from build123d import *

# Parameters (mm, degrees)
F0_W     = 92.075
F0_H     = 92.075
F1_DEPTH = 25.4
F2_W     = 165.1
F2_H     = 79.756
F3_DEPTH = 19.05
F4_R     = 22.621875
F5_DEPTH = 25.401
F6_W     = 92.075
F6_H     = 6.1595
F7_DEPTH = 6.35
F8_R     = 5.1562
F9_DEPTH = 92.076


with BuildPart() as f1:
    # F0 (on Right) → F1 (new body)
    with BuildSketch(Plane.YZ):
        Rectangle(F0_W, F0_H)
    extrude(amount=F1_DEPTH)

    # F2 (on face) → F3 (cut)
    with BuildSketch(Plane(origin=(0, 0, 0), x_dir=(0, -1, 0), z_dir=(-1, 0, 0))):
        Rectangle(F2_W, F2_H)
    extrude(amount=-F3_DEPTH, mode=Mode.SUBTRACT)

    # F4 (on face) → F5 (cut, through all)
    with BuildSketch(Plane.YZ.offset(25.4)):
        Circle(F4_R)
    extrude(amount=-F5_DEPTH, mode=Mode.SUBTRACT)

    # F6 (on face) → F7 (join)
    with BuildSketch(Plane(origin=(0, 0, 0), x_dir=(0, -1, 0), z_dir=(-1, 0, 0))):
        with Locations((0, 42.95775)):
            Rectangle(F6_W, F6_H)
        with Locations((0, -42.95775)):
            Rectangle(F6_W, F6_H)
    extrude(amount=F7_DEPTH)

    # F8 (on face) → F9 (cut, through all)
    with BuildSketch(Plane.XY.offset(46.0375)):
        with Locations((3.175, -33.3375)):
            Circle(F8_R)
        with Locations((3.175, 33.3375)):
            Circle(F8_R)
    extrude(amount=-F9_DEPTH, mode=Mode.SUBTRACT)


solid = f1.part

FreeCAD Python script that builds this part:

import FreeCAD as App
import Part
import Sketcher
Q = App.Units.Quantity


def add_polygon(sketch, points):
    """Adds a closed chain of lines whose ends are joined by coincident constraints."""
    first, n = sketch.GeometryCount, len(points)
    for a, b in zip(points, points[1:] + points[:1]):
        sketch.addGeometry(Part.LineSegment(App.Vector(*a, 0), App.Vector(*b, 0)), False)
    for i in range(n):
        sketch.addConstraint(Sketcher.Constraint("Coincident", first + i, 2, first + (i + 1) % n, 1))

doc = App.newDocument("Part")
body = doc.addObject("PartDesign::Body", "Body")

# Sketch on YZ plane
sketch1 = body.newObject("Sketcher::SketchObject", "Sketch")
sketch1.AttachmentSupport = (doc.getObject("YZ_Plane"), [""])
sketch1.MapMode = "FlatFace"
add_polygon(sketch1, [(-46, 46), (-46, -46), (46, -46), (46, 46)])  # lines 0-3
sketch1.addConstraint(Sketcher.Constraint("Vertical", 0))
sketch1.addConstraint(Sketcher.Constraint("Horizontal", 1))
sketch1.addConstraint(Sketcher.Constraint("Vertical", 2))
sketch1.addConstraint(Sketcher.Constraint("Horizontal", 3))
sketch1.addConstraint(Sketcher.Constraint("Symmetric", 0, 2, 2, 2, -1, 1))
sketch1.addConstraint(Sketcher.Constraint("Equal", 3, 0))
sketch1.addConstraint(Sketcher.Constraint("DistanceX", 1, 1, 1, 2, Q("3.625 in")))
pad1 = body.newObject("PartDesign::Pad", "Pad")
pad1.Profile = sketch1
pad1.Length = Q("1 in")

# Sketch on YZ plane
sketch2 = body.newObject("Sketcher::SketchObject", "Sketch001")
sketch2.AttachmentSupport = (doc.getObject("YZ_Plane"), [""])
sketch2.MapMode = "FlatFace"
add_polygon(sketch2, [(83, 40), (83, -40), (-83, -40), (-83, 40)])  # lines 0-3
sketch2.addConstraint(Sketcher.Constraint("Vertical", 0))
sketch2.addConstraint(Sketcher.Constraint("Horizontal", 1))
sketch2.addConstraint(Sketcher.Constraint("Vertical", 2))
sketch2.addConstraint(Sketcher.Constraint("Horizontal", 3))
sketch2.addConstraint(Sketcher.Constraint("Symmetric", 0, 2, 2, 2, -1, 1))
sketch2.addConstraint(Sketcher.Constraint("DistanceX", 1, 2, 1, 1, Q("6.5 in")))
sketch2.addConstraint(Sketcher.Constraint("DistanceY", 0, 2, 0, 1, Q("3.14 in")))
pocket1 = body.newObject("PartDesign::Pocket", "Pocket")
pocket1.Profile = sketch2
pocket1.Length = Q("0.75 in")
pocket1.Reversed = True

# Sketch on YZ plane
sketch3 = body.newObject("Sketcher::SketchObject", "Sketch002")
sketch3.AttachmentSupport = (doc.getObject("YZ_Plane"), [""])
sketch3.MapMode = "FlatFace"
sketch3.AttachmentOffset = App.Placement(App.Vector(0, 0, 1 * 25.4), App.Rotation())
sketch3.addGeometry(Part.Circle(App.Vector(0, 0, 0), App.Vector(0, 0, 1), 23), False)
sketch3.addConstraint(Sketcher.Constraint("Coincident", 0, 3, -1, 1))
sketch3.addConstraint(Sketcher.Constraint("Diameter", 0, Q("1.78125 in")))
pocket2 = body.newObject("PartDesign::Pocket", "Pocket001")
pocket2.Profile = sketch3
pocket2.Type = "ThroughAll"

# Sketch on YZ plane
sketch4 = body.newObject("Sketcher::SketchObject", "Sketch003")
sketch4.AttachmentSupport = (doc.getObject("YZ_Plane"), [""])
sketch4.MapMode = "FlatFace"
add_polygon(sketch4, [(46, 46), (46, 40), (-46, 40), (-46, 46)])  # lines 0-3
add_polygon(sketch4, [(46, -40), (46, -46), (-46, -46), (-46, -40)])  # lines 4-7
sketch4.addConstraint(Sketcher.Constraint("Vertical", 0))
sketch4.addConstraint(Sketcher.Constraint("Horizontal", 1))
sketch4.addConstraint(Sketcher.Constraint("Vertical", 2))
sketch4.addConstraint(Sketcher.Constraint("Horizontal", 3))
sketch4.addConstraint(Sketcher.Constraint("Vertical", 4))
sketch4.addConstraint(Sketcher.Constraint("Horizontal", 5))
sketch4.addConstraint(Sketcher.Constraint("Vertical", 6))
sketch4.addConstraint(Sketcher.Constraint("Horizontal", 7))
sketch4.addConstraint(Sketcher.Constraint("Symmetric", 2, 2, 4, 2, -1, 1))
sketch4.addConstraint(Sketcher.Constraint("Symmetric", 0, 2, 6, 2, -1, 1))
sketch4.addConstraint(Sketcher.Constraint("Vertical", 3, 2, 4, 2))
sketch4.addConstraint(Sketcher.Constraint("DistanceX", 1, 2, 1, 1, Q("3.625 in")))
sketch4.addConstraint(Sketcher.Constraint("DistanceY", -1, 1, 0, 2, Q("1.57 in")))
sketch4.addConstraint(Sketcher.Constraint("DistanceY", 0, 2, 0, 1, Q("0.2425 in")))
pad2 = body.newObject("PartDesign::Pad", "Pad001")
pad2.Profile = sketch4
pad2.Length = Q("0.25 in")
pad2.Reversed = True

# Sketch on XY plane
sketch5 = body.newObject("Sketcher::SketchObject", "Sketch004")
sketch5.AttachmentSupport = (doc.getObject("XY_Plane"), [""])
sketch5.MapMode = "FlatFace"
sketch5.AttachmentOffset = App.Placement(App.Vector(0, 0, 1.8125 * 25.4), App.Rotation())
sketch5.addGeometry(Part.Circle(App.Vector(3, -33, 0), App.Vector(0, 0, 1), 5), False)
sketch5.addGeometry(Part.Circle(App.Vector(3, 33, 0), App.Vector(0, 0, 1), 5), False)
sketch5.addConstraint(Sketcher.Constraint("Equal", 0, 1))
sketch5.addConstraint(Sketcher.Constraint("Symmetric", 0, 3, 1, 3, -1))
sketch5.addConstraint(Sketcher.Constraint("Diameter", 0, Q("0.406 in")))
sketch5.addConstraint(Sketcher.Constraint("DistanceX", -1, 1, 0, 3, Q("0.125 in")))
sketch5.addConstraint(Sketcher.Constraint("DistanceY", 0, 3, -1, 1, Q("1.3125 in")))
pocket3 = body.newObject("PartDesign::Pocket", "Pocket002")
pocket3.Profile = sketch5
pocket3.Type = "ThroughAll"

doc.recompute()
